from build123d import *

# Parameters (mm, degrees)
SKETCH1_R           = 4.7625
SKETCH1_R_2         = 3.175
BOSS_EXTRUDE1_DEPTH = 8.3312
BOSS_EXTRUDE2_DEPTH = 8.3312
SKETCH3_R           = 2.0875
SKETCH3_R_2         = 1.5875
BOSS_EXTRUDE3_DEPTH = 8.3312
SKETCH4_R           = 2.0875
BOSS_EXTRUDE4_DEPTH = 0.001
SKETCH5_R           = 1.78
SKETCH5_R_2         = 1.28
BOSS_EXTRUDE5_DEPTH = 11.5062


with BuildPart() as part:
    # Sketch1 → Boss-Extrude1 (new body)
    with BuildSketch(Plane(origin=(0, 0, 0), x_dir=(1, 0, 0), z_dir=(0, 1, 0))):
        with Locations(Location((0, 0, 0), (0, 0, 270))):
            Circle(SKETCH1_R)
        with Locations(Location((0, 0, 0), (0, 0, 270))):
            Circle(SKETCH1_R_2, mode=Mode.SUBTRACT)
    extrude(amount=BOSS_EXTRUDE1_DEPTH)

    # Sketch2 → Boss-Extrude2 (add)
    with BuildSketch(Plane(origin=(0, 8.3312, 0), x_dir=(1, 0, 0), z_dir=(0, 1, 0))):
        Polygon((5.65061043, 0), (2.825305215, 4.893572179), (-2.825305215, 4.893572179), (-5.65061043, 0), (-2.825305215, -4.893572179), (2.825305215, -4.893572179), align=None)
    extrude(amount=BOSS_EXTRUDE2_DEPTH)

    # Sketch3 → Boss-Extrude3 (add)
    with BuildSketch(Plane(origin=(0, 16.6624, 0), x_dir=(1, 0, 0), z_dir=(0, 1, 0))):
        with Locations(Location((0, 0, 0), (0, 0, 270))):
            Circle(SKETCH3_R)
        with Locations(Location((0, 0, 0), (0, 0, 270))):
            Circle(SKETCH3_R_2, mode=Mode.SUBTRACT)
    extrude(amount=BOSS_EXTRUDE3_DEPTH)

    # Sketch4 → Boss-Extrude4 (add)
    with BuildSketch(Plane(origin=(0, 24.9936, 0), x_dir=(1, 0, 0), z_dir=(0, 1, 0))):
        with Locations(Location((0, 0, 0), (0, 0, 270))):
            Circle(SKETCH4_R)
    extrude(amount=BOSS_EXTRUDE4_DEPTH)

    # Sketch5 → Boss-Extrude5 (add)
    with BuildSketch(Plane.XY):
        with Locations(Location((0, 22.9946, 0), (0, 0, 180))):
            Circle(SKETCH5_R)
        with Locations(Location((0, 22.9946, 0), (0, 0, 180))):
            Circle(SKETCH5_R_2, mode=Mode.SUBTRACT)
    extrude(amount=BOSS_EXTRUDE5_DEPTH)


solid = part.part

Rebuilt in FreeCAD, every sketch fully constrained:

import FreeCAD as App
import Part
import Sketcher

V = App.Vector
Q = App.Units.Quantity


def add_polygon(sketch, points):
    """Adds a closed chain of lines whose ends are joined by coincident constraints."""
    first, n = sketch.GeometryCount, len(points)
    for a, b in zip(points, points[1:] + points[:1]):
        sketch.addGeometry(Part.LineSegment(App.Vector(*a, 0), App.Vector(*b, 0)), False)
    for i in range(n):
        sketch.addConstraint(Sketcher.Constraint("Coincident", first + i, 2, first + (i + 1) % n, 1))

doc = App.newDocument("Part")
body = doc.addObject("PartDesign::Body", "Body")

sketch1 = body.newObject("Sketcher::SketchObject", "Sketch")
sketch1.AttachmentSupport = (doc.getObject("XZ_Plane"), [""])
sketch1.MapMode = "FlatFace"
sketch1.addGeometry([
    Part.Circle(V(0, 0, 0), V(0, 0, 1), 4.7625),
    Part.Circle(V(0, 0, 0), V(0, 0, 1), 3.175),
], False)
sketch1.addConstraint([
    Sketcher.Constraint("Coincident", 0, 3, -1, 1),
    Sketcher.Constraint("Coincident", 1, 3, -1, 1),
    Sketcher.Constraint("Diameter", 1, Q("0.25 in")),
    Sketcher.Constraint("Diameter", 0, Q("0.375 in")),
])
pad1 = body.newObject("PartDesign::Pad", "Pad")
pad1.Profile = sketch1
pad1.Length = Q("0.328 in")
pad1.Reversed = True

sketch2 = body.newObject("Sketcher::SketchObject", "Sketch001")
sketch2.AttachmentSupport = (doc.getObject("XZ_Plane"), [""])
sketch2.MapMode = "FlatFace"
sketch2.AttachmentOffset = App.Placement(V(0, 0, -0.328 * 25.4), App.Rotation())
add_polygon(sketch2, [(5.65061, 0), (2.825305, -4.893572), (-2.825305, -4.893572), (-5.65061, 0), (-2.825305, 4.893572), (2.825305, 4.893572)])
sketch2.addConstraint([
    Sketcher.Constraint("Horizontal", 1),
    Sketcher.Constraint("Horizontal", 4),
    Sketcher.Constraint("Symmetric", 0, 2, 3, 2, -1, 1),
    Sketcher.Constraint("Symmetric", 2, 2, 5, 2, -1, 1),
    Sketcher.Constraint("PointOnObject", 2, 2, -1),
    Sketcher.Constraint("Parallel", 2, 5),
    Sketcher.Constraint("Vertical", 1, 2, 3, 2),
    Sketcher.Constraint("Angle", 0, Q("-120 deg")),
    Sketcher.Constraint("DistanceX", 1, 2, 1, 1, Q("5.65061 mm")),
    Sketcher.Constraint("Distance", 0, Q("5.65061 mm")),
])
pad2 = body.newObject("PartDesign::Pad", "Pad001")
pad2.Profile = sketch2
pad2.Length = Q("0.328 in")
pad2.Reversed = True

sketch3 = body.newObject("Sketcher::SketchObject", "Sketch002")
sketch3.AttachmentSupport = (doc.getObject("XZ_Plane"), [""])
sketch3.MapMode = "FlatFace"
sketch3.AttachmentOffset = App.Placement(V(0, 0, -0.656 * 25.4), App.Rotation())
sketch3.addGeometry([
    Part.Circle(V(0, 0, 0), V(0, 0, 1), 2.0875),
    Part.Circle(V(0, 0, 0), V(0, 0, 1), 1.5875),
], False)
sketch3.addConstraint([
    Sketcher.Constraint("Coincident", 0, 3, -1, 1),
    Sketcher.Constraint("Coincident", 1, 3, -1, 1),
    Sketcher.Constraint("Diameter", 1, Q("0.125 in")),
    Sketcher.Constraint("Diameter", 0, Q("4.175 mm")),
])
pad3 = body.newObject("PartDesign::Pad", "Pad002")
pad3.Profile = sketch3
pad3.Length = Q("0.328 in")
pad3.Reversed = True

sketch4 = body.newObject("Sketcher::SketchObject", "Sketch003")
sketch4.AttachmentSupport = (doc.getObject("XZ_Plane"), [""])
sketch4.MapMode = "FlatFace"
sketch4.AttachmentOffset = App.Placement(V(0, 0, -0.984 * 25.4), App.Rotation())
sketch4.addGeometry(Part.Circle(V(0, 0, 0), V(0, 0, 1), 2.0875), False)
sketch4.addConstraint([
    Sketcher.Constraint("Coincident", 0, 3, -1, 1),
    Sketcher.Constraint("Diameter", 0, Q("4.175 mm")),
])
pad4 = body.newObject("PartDesign::Pad", "Pad003")
pad4.Profile = sketch4
pad4.Length = 0.001
pad4.Reversed = True

sketch5 = body.newObject("Sketcher::SketchObject", "Sketch004")
sketch5.AttachmentSupport = (doc.getObject("XY_Plane"), [""])
sketch5.MapMode = "FlatFace"
sketch5.addGeometry([
    Part.Circle(V(0, 22.9946, 0), V(0, 0, 1), 1.78),
    Part.Circle(V(0, 22.9946, 0), V(0, 0, 1), 1.28),
], False)
sketch5.addConstraint([
    Sketcher.Constraint("Coincident", 1, 3, 0, 3),
    Sketcher.Constraint("PointOnObject", 0, 3, -2),
    Sketcher.Constraint("Diameter", 0, Q("3.56 mm")),
    Sketcher.Constraint("Diameter", 1, Q("2.56 mm")),
    Sketcher.Constraint("DistanceY", -1, 1, 0, 3, Q("22.9946 mm")),
])
pad5 = body.newObject("PartDesign::Pad", "Pad004")
pad5.Profile = sketch5
pad5.Length = Q("0.453 in")

doc.recompute()
